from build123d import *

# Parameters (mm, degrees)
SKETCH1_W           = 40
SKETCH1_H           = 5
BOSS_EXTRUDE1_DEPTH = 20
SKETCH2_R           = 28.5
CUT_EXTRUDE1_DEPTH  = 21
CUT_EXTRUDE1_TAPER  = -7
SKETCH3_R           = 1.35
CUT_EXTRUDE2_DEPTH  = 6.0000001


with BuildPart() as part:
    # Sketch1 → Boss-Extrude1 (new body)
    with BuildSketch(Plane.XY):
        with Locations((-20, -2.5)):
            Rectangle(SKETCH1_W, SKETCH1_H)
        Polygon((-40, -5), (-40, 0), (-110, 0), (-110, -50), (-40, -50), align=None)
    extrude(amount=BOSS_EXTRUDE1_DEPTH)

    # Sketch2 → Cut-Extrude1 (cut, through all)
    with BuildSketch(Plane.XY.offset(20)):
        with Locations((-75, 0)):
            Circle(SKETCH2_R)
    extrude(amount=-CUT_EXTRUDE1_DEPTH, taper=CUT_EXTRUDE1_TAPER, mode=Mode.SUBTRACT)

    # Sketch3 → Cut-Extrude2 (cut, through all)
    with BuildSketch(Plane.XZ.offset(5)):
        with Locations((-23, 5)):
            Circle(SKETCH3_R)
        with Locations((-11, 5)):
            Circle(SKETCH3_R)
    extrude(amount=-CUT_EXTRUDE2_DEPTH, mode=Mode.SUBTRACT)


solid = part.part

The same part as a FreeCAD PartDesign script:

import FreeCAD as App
import Part
import Sketcher
from FreeCAD import Vector
Q = App.Units.Quantity


def add_polygon(sketch, points):
    """Adds a closed chain of lines whose ends are joined by coincident constraints."""
    first, n = sketch.GeometryCount, len(points)
    for a, b in zip(points, points[1:] + points[:1]):
        sketch.addGeometry(Part.LineSegment(App.Vector(*a, 0), App.Vector(*b, 0)), False)
    for i in range(n):
        sketch.addConstraint(Sketcher.Constraint("Coincident", first + i, 2, first + (i + 1) % n, 1))

doc = App.newDocument("Part")
params = doc.addObject("Spreadsheet::Sheet", "Params")
for row, (alias, value) in enumerate([
    ("sketch1_width", "40 mm"),
    ("sketch1_width2", "110 mm"),
    ("sketch1_height", "5 mm"),
    ("sketch1_height2", "50 mm"),
    ("pad1_length", "20 mm"),
    ("sketch2_diameter", "57 mm"),
    ("pocket1_length", "21 mm"),
    ("pocket1_taper", "7 deg"),
    ("sketch3_diameter", "2.7 mm"),
], start=1):
    params.set(f"A{row}", alias)
    params.set(f"B{row}", "=" + value)
    params.setAlias(f"B{row}", alias)

body = doc.addObject("PartDesign::Body", "Body")

# Sketch on XY plane
sketch1 = doc.addObject("Sketcher::SketchObject", "Sketch")
body.addObject(sketch1)
sketch1.AttachmentSupport = (doc.XY_Plane, [""])
sketch1.MapMode = "FlatFace"
add_polygon(sketch1, [(-40, -5), (0, -5), (0, 0), (-110, 0), (-110, -50), (-40, -50)])  # lines 0-5
sketch1.addConstraint([
    Sketcher.Constraint("Horizontal", 0),
    Sketcher.Constraint("Vertical", 1),
    Sketcher.Constraint("Horizontal", 2),
    Sketcher.Constraint("Vertical", 3),
    Sketcher.Constraint("Horizontal", 4),
    Sketcher.Constraint("Vertical", 5),
    Sketcher.Constraint("Coincident", 1, 2, -1, 1),
    Sketcher.Constraint("DistanceX", 0, 1, 0, 2, Q("40 mm")),
    Sketcher.Constraint("DistanceX", 2, 2, 2, 1, Q("110 mm")),
    Sketcher.Constraint("DistanceY", 1, 1, 1, 2, Q("5 mm")),
    Sketcher.Constraint("DistanceY", 3, 2, 3, 1, Q("50 mm")),
])
sketch1.setExpression("Constraints[13]", "Params.sketch1_width")
sketch1.setExpression("Constraints[14]", "Params.sketch1_width2")
sketch1.setExpression("Constraints[15]", "Params.sketch1_height")
sketch1.setExpression("Constraints[16]", "Params.sketch1_height2")
pad1 = doc.addObject("PartDesign::Pad", "Pad")
body.addObject(pad1)
pad1.Profile = sketch1
pad1.setExpression("Length", "Params.pad1_length")

# Sketch on XY plane
sketch2 = doc.addObject("Sketcher::SketchObject", "Sketch001")
body.addObject(sketch2)
sketch2.AttachmentSupport = (doc.XY_Plane, [""])
sketch2.MapMode = "FlatFace"
sketch2.AttachmentOffset = App.Placement(Vector(0, 0, 20), App.Rotation())
sketch2.addGeometry(Part.Circle(Vector(-75, 0, 0), Vector(0, 0, 1), 28), False)
sketch2.addConstraint([
    Sketcher.Constraint("PointOnObject", 0, 3, -1),
    Sketcher.Constraint("Diameter", 0, Q("57 mm")),
    Sketcher.Constraint("DistanceX", 0, 3, -1, 1, Q("75 mm")),
])
sketch2.setExpression("Constraints[1]", "Params.sketch2_diameter")
pocket1 = doc.addObject("PartDesign::Pocket", "Pocket")
body.addObject(pocket1)
pocket1.Profile = sketch2
pocket1.setExpression("Length", "Params.pocket1_length")
pocket1.setExpression("TaperAngle", "Params.pocket1_taper")

# Sketch on XZ plane
sketch3 = doc.addObject("Sketcher::SketchObject", "Sketch002")
body.addObject(sketch3)
sketch3.AttachmentSupport = (doc.XZ_Plane, [""])
sketch3.MapMode = "FlatFace"
sketch3.AttachmentOffset = App.Placement(Vector(0, 0, 5), App.Rotation())
sketch3.addGeometry([
    Part.Circle(Vector(-23, 5, 0), Vector(0, 0, 1), 1.4),
    Part.Circle(Vector(-11, 5, 0), Vector(0, 0, 1), 1.4),
], False)
sketch3.addConstraint([
    Sketcher.Constraint("Equal", 0, 1),
    Sketcher.Constraint("Horizontal", 0, 3, 1, 3),
    Sketcher.Constraint("Diameter", 0, Q("2.7 mm")),
    Sketcher.Constraint("DistanceX", 0, 3, -1, 1, Q("23 mm")),
    Sketcher.Constraint("DistanceY", -1, 1, 0, 3, Q("5 mm")),
    Sketcher.Constraint("DistanceX", 1, 3, -1, 1, Q("11 mm")),
])
sketch3.setExpression("Constraints[2]", "Params.sketch3_diameter")
pocket2 = doc.addObject("PartDesign::Pocket", "Pocket001")
body.addObject(pocket2)
pocket2.Profile = sketch3
pocket2.Type = "ThroughAll"

doc.recompute()
